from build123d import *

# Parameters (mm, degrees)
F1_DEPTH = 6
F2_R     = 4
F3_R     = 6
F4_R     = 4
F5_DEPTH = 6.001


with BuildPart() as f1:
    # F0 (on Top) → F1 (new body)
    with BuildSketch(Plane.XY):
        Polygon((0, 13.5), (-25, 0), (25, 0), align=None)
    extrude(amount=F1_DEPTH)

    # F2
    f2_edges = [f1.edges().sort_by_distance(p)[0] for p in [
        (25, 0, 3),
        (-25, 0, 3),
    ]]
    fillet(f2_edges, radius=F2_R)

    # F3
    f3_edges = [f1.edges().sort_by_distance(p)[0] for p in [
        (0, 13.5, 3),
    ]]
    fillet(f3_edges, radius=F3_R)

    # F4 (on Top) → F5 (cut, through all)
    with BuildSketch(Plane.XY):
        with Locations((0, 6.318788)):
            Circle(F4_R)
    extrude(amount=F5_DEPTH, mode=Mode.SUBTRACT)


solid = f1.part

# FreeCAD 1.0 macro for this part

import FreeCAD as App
import Part
import Sketcher


def edges_at(feature, points):
    """Names of the edges that pass closest to the given points."""
    edges = feature.Shape.Edges
    near = lambda p: min(range(len(edges)), key=lambda i: edges[i].distToShape(Part.Vertex(*p))[0])
    return sorted({f"Edge{near(p) + 1}" for p in points})

doc = App.newDocument("Part")
params = doc.addObject("Spreadsheet::Sheet", "Params")
for row, (alias, value) in enumerate([
    ("sketch1_width", "50 mm"),
    ("pad1_length", "6 mm"),
    ("fillet_radius", "4 mm"),
    ("fillet2_radius", "6 mm"),
    ("sketch2_diameter", "8 mm"),
], start=1):
    params.set(f"A{row}", alias)
    params.set(f"B{row}", "=" + value)
    params.setAlias(f"B{row}", alias)

body = doc.addObject("PartDesign::Body", "Body")

sketch1 = doc.addObject("Sketcher::SketchObject", "Sketch")
body.addObject(sketch1)
sketch1.AttachmentSupport = (doc.XY_Plane, [""])
sketch1.MapMode = "FlatFace"
sketch1.addGeometry([
    Part.LineSegment(App.Vector(0, 14, 0), App.Vector(-25, 0, 0)),
    Part.LineSegment(App.Vector(-25, 0, 0), App.Vector(25, 0, 0)),
    Part.LineSegment(App.Vector(25, 0, 0), App.Vector(0, 14, 0)),
], False)
sketch1.addConstraint([
    Sketcher.Constraint("Coincident", 0, 2, 1, 1),
    Sketcher.Constraint("Coincident", 1, 2, 2, 1),
    Sketcher.Constraint("Coincident", 2, 2, 0, 1),
    Sketcher.Constraint("Horizontal", 1),
    Sketcher.Constraint("Symmetric", 0, 2, 1, 2, -1, 1),
    Sketcher.Constraint("PointOnObject", 2, 2, -2),
    Sketcher.Constraint("DistanceX", 1, 1, 1, 2, 50.0),
    Sketcher.Constraint("DistanceY", -1, 1, 2, 2, 13.5),
])
sketch1.setExpression("Constraints[6]", "Params.sketch1_width")
pad1 = doc.addObject("PartDesign::Pad", "Pad")
body.addObject(pad1)
pad1.Profile = sketch1
pad1.setExpression("Length", "Params.pad1_length")
doc.recompute()

fillet = doc.addObject("PartDesign::Fillet", "Fillet")
body.addObject(fillet)
fillet.Base = (pad1, edges_at(pad1, [(25, 0, 3), (-25, 0, 3)]))
fillet.setExpression("Radius", "Params.fillet_radius")
doc.recompute()

fillet2 = doc.addObject("PartDesign::Fillet", "Fillet001")
body.addObject(fillet2)
fillet2.Base = (fillet, edges_at(fillet, [(0, 13.5, 3)]))
fillet2.setExpression("Radius", "Params.fillet2_radius")

sketch2 = doc.addObject("Sketcher::SketchObject", "Sketch001")
body.addObject(sketch2)
sketch2.AttachmentSupport = (doc.XY_Plane, [""])
sketch2.MapMode = "FlatFace"
sketch2.addGeometry(Part.Circle(App.Vector(0, 6.3, 0), App.Vector(0, 0, 1), 4), False)
sketch2.addConstraint([
    Sketcher.Constraint("PointOnObject", 0, 3, -2),
    Sketcher.Constraint("Diameter", 0, 8.0),
    Sketcher.Constraint("DistanceY", -1, 1, 0, 3, 6.318788),
])
sketch2.setExpression("Constraints[1]", "Params.sketch2_diameter")
pocket1 = doc.addObject("PartDesign::Pocket", "Pocket")
body.addObject(pocket1)
pocket1.Profile = sketch2
pocket1.Type = "ThroughAll"
pocket1.Reversed = True

doc.recompute()
